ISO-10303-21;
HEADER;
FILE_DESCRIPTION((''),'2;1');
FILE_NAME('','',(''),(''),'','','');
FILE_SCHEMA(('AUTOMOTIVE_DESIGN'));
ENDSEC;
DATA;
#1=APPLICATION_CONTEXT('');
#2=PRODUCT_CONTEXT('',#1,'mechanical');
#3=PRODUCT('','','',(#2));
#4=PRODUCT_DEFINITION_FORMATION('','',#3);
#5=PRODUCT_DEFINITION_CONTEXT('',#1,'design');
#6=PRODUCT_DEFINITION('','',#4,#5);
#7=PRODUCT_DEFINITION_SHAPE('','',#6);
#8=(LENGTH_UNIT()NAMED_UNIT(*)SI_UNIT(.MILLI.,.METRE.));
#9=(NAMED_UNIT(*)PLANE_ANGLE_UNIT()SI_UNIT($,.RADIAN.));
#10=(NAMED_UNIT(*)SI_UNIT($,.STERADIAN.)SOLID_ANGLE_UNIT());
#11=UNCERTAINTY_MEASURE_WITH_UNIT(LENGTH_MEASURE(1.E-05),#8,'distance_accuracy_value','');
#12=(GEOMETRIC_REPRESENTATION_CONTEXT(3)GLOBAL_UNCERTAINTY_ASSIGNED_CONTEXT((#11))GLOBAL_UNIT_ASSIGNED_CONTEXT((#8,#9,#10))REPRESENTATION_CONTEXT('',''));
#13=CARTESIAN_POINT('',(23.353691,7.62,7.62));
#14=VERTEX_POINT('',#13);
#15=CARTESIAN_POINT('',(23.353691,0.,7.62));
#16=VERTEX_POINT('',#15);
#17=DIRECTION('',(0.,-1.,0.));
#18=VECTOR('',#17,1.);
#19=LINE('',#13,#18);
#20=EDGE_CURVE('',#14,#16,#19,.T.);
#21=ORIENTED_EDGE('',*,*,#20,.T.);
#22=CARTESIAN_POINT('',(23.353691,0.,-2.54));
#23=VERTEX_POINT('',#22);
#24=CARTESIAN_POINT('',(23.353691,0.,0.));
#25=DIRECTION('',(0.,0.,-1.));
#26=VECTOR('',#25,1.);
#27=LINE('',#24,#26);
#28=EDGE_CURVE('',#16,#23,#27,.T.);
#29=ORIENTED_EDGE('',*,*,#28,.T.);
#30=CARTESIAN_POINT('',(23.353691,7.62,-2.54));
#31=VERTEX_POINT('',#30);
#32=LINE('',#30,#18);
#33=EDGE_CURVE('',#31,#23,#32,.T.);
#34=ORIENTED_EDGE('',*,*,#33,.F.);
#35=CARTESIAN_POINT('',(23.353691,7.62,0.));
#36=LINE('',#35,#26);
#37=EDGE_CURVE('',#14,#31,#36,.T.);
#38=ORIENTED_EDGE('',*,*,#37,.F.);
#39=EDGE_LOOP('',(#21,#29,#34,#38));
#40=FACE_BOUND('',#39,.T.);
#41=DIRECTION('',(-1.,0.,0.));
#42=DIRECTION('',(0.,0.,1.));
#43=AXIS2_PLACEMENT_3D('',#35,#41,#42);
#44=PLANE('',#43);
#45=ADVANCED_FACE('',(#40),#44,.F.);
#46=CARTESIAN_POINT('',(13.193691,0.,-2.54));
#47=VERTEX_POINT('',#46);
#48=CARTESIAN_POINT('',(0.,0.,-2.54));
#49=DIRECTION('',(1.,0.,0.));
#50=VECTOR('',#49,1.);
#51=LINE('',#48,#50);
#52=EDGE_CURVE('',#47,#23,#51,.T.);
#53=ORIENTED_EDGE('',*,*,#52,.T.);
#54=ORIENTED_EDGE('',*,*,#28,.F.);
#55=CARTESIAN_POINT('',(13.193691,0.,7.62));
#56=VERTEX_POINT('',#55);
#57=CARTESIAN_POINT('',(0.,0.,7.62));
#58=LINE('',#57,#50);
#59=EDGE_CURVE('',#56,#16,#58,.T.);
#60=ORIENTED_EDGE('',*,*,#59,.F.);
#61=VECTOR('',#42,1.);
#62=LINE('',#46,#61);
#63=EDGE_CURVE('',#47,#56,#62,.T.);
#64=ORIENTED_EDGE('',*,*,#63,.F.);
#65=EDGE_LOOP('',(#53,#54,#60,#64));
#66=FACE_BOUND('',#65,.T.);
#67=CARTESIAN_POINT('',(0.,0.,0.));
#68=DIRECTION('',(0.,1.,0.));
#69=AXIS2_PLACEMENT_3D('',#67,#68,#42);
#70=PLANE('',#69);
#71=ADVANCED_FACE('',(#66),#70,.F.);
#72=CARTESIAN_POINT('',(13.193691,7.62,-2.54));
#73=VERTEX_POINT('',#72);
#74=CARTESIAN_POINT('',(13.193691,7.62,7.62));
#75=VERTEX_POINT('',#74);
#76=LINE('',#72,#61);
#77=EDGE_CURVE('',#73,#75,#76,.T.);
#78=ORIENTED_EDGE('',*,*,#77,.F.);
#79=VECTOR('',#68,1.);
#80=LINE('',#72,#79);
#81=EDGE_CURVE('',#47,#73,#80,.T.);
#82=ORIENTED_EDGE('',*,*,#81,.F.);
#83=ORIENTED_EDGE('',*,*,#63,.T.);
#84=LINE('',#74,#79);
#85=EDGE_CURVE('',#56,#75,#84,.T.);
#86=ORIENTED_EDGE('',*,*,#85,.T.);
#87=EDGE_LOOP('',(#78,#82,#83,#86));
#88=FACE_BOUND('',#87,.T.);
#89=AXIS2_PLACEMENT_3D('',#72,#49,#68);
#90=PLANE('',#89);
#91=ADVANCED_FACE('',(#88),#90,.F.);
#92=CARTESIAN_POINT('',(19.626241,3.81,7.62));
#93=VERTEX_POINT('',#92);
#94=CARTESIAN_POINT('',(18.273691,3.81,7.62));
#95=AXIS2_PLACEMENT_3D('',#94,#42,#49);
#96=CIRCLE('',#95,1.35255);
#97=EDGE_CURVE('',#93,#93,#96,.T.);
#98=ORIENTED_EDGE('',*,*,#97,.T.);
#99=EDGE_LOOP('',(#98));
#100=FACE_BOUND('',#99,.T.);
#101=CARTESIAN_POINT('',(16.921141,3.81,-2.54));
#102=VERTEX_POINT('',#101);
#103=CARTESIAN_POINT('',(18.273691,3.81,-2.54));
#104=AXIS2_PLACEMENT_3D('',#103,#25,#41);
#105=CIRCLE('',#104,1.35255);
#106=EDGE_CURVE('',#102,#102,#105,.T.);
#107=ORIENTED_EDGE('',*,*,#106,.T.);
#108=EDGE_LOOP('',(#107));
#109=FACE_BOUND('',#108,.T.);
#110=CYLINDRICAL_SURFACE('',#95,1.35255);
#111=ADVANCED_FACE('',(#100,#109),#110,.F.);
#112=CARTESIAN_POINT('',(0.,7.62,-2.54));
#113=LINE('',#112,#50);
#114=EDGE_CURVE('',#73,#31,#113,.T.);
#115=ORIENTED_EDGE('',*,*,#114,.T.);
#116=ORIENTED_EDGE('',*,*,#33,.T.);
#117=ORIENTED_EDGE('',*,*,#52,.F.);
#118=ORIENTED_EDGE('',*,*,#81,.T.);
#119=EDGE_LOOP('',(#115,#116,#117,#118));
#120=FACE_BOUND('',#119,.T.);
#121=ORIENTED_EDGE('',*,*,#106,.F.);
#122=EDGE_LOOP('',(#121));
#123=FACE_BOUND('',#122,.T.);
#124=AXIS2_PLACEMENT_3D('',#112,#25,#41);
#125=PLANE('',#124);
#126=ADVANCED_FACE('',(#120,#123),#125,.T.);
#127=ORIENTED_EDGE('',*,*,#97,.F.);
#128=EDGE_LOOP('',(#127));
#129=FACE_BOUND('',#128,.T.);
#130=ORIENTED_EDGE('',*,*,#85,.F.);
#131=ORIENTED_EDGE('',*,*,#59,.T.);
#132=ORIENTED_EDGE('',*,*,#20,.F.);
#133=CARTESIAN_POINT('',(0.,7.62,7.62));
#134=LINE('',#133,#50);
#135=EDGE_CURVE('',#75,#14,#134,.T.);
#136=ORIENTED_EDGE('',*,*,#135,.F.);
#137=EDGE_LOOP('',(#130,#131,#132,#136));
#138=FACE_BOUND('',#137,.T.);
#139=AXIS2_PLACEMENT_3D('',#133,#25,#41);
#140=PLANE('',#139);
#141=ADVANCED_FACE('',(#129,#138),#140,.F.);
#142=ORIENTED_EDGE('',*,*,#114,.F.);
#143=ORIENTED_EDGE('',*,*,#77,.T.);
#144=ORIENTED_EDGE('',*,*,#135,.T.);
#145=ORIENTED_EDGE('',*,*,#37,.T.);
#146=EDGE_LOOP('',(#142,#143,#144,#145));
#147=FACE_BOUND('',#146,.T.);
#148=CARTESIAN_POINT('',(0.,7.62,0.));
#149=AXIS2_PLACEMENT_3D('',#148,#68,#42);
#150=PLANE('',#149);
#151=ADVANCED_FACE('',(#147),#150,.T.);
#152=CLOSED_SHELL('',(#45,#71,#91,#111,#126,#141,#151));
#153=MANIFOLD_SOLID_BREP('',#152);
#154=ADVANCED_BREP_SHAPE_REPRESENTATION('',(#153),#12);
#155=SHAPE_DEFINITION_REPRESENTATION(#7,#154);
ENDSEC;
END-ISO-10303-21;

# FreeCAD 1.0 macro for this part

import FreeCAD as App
import Part
import Sketcher

V = App.Vector
Q = App.Units.Quantity

doc = App.newDocument("Part")
body = doc.addObject("PartDesign::Body", "Body")

# Sketch on XZ plane
sketch1 = body.newObject("Sketcher::SketchObject", "Sketch")
sketch1.AttachmentSupport = (doc.getObject("XZ_Plane"), [""])
sketch1.MapMode = "FlatFace"
sketch1.addGeometry([
    Part.LineSegment(V(11, -3, 0), V(11, 8, 0)),
    Part.LineSegment(V(11, 8, 0), V(23, 8, 0)),
    Part.LineSegment(V(23, 8, 0), V(23, -3, 0)),
    Part.LineSegment(V(23, -3, 0), V(11, -3, 0)),
], False)
sketch1.addConstraint([
    Sketcher.Constraint("Coincident", 0, 2, 1, 1),
    Sketcher.Constraint("Coincident", 1, 2, 2, 1),
    Sketcher.Constraint("Coincident", 2, 2, 3, 1),
    Sketcher.Constraint("Coincident", 3, 2, 0, 1),
    Sketcher.Constraint("Vertical", 0),
    Sketcher.Constraint("Horizontal", 1),
    Sketcher.Constraint("Vertical", 2),
    Sketcher.Constraint("Horizontal", 3),
    Sketcher.Constraint("DistanceX", 1, 1, 1, 2, Q("0.5 in")),
    Sketcher.Constraint("DistanceY", 0, 1, 0, 2, Q("0.4 in")),
    Sketcher.Constraint("DistanceY", -1, 1, 0, 2, Q("0.3 in")),
    Sketcher.Constraint("DistanceX", -1, 1, 0, 2, 10.653691),
])
pad1 = body.newObject("PartDesign::Pad", "Pad")
pad1.Profile = sketch1
pad1.Length = Q("0.3 in")
pad1.Reversed = True

# Sketch on XY plane
sketch2 = body.newObject("Sketcher::SketchObject", "Sketch001")
sketch2.AttachmentSupport = (doc.getObject("XY_Plane"), [""])
sketch2.MapMode = "FlatFace"
sketch2.AttachmentOffset = App.Placement(V(0, 0, 0.3 * 25.4), App.Rotation())
sketch2.addGeometry([
    Part.LineSegment(V(10.7, 7.6, 0), V(10.7, 0, 0)),
    Part.LineSegment(V(10.7, 0, 0), V(13.2, 0, 0)),
    Part.LineSegment(V(13.2, 0, 0), V(13.2, 7.6, 0)),
    Part.LineSegment(V(13.2, 7.6, 0), V(10.7, 7.6, 0)),
], False)
sketch2.addConstraint([
    Sketcher.Constraint("Coincident", 0, 2, 1, 1),
    Sketcher.Constraint("Coincident", 1, 2, 2, 1),
    Sketcher.Constraint("Coincident", 2, 2, 3, 1),
    Sketcher.Constraint("Coincident", 3, 2, 0, 1),
    Sketcher.Constraint("Vertical", 0),
    Sketcher.Constraint("Horizontal", 1),
    Sketcher.Constraint("Vertical", 2),
    Sketcher.Constraint("Horizontal", 3),
    Sketcher.Constraint("PointOnObject", 0, 2, -1),
    Sketcher.Constraint("DistanceX", 1, 1, 1, 2, Q("0.1 in")),
    Sketcher.Constraint("DistanceY", 0, 2, 0, 1, Q("0.3 in")),
    Sketcher.Constraint("DistanceX", -1, 1, 0, 2, 10.653691),
])
pocket1 = body.newObject("PartDesign::Pocket", "Pocket")
pocket1.Profile = sketch2
pocket1.Type = "ThroughAll"

# Sketch on XY plane
sketch3 = body.newObject("Sketcher::SketchObject", "Sketch002")
sketch3.AttachmentSupport = (doc.getObject("XY_Plane"), [""])
sketch3.MapMode = "FlatFace"
sketch3.AttachmentOffset = App.Placement(V(0, 0, 0.3 * 25.4), App.Rotation())
sketch3.addGeometry(Part.Circle(V(18.3, 3.8, 0), V(0, 0, 1), 1.4), False)
sketch3.addConstraint([
    Sketcher.Constraint("Diameter", 0, Q("0.1065 in")),
    Sketcher.Constraint("DistanceY", -1, 1, 0, 3, Q("0.15 in")),
    Sketcher.Constraint("DistanceX", -1, 1, 0, 3, 18.273691),
])
doc.recompute()
hole = body.newObject("PartDesign::Hole", "Hole")
hole.Profile = sketch3
hole.ThreadType = "None"
hole.Diameter = Q("0.1065 in")
hole.DepthType = "ThroughAll"

doc.recompute()
